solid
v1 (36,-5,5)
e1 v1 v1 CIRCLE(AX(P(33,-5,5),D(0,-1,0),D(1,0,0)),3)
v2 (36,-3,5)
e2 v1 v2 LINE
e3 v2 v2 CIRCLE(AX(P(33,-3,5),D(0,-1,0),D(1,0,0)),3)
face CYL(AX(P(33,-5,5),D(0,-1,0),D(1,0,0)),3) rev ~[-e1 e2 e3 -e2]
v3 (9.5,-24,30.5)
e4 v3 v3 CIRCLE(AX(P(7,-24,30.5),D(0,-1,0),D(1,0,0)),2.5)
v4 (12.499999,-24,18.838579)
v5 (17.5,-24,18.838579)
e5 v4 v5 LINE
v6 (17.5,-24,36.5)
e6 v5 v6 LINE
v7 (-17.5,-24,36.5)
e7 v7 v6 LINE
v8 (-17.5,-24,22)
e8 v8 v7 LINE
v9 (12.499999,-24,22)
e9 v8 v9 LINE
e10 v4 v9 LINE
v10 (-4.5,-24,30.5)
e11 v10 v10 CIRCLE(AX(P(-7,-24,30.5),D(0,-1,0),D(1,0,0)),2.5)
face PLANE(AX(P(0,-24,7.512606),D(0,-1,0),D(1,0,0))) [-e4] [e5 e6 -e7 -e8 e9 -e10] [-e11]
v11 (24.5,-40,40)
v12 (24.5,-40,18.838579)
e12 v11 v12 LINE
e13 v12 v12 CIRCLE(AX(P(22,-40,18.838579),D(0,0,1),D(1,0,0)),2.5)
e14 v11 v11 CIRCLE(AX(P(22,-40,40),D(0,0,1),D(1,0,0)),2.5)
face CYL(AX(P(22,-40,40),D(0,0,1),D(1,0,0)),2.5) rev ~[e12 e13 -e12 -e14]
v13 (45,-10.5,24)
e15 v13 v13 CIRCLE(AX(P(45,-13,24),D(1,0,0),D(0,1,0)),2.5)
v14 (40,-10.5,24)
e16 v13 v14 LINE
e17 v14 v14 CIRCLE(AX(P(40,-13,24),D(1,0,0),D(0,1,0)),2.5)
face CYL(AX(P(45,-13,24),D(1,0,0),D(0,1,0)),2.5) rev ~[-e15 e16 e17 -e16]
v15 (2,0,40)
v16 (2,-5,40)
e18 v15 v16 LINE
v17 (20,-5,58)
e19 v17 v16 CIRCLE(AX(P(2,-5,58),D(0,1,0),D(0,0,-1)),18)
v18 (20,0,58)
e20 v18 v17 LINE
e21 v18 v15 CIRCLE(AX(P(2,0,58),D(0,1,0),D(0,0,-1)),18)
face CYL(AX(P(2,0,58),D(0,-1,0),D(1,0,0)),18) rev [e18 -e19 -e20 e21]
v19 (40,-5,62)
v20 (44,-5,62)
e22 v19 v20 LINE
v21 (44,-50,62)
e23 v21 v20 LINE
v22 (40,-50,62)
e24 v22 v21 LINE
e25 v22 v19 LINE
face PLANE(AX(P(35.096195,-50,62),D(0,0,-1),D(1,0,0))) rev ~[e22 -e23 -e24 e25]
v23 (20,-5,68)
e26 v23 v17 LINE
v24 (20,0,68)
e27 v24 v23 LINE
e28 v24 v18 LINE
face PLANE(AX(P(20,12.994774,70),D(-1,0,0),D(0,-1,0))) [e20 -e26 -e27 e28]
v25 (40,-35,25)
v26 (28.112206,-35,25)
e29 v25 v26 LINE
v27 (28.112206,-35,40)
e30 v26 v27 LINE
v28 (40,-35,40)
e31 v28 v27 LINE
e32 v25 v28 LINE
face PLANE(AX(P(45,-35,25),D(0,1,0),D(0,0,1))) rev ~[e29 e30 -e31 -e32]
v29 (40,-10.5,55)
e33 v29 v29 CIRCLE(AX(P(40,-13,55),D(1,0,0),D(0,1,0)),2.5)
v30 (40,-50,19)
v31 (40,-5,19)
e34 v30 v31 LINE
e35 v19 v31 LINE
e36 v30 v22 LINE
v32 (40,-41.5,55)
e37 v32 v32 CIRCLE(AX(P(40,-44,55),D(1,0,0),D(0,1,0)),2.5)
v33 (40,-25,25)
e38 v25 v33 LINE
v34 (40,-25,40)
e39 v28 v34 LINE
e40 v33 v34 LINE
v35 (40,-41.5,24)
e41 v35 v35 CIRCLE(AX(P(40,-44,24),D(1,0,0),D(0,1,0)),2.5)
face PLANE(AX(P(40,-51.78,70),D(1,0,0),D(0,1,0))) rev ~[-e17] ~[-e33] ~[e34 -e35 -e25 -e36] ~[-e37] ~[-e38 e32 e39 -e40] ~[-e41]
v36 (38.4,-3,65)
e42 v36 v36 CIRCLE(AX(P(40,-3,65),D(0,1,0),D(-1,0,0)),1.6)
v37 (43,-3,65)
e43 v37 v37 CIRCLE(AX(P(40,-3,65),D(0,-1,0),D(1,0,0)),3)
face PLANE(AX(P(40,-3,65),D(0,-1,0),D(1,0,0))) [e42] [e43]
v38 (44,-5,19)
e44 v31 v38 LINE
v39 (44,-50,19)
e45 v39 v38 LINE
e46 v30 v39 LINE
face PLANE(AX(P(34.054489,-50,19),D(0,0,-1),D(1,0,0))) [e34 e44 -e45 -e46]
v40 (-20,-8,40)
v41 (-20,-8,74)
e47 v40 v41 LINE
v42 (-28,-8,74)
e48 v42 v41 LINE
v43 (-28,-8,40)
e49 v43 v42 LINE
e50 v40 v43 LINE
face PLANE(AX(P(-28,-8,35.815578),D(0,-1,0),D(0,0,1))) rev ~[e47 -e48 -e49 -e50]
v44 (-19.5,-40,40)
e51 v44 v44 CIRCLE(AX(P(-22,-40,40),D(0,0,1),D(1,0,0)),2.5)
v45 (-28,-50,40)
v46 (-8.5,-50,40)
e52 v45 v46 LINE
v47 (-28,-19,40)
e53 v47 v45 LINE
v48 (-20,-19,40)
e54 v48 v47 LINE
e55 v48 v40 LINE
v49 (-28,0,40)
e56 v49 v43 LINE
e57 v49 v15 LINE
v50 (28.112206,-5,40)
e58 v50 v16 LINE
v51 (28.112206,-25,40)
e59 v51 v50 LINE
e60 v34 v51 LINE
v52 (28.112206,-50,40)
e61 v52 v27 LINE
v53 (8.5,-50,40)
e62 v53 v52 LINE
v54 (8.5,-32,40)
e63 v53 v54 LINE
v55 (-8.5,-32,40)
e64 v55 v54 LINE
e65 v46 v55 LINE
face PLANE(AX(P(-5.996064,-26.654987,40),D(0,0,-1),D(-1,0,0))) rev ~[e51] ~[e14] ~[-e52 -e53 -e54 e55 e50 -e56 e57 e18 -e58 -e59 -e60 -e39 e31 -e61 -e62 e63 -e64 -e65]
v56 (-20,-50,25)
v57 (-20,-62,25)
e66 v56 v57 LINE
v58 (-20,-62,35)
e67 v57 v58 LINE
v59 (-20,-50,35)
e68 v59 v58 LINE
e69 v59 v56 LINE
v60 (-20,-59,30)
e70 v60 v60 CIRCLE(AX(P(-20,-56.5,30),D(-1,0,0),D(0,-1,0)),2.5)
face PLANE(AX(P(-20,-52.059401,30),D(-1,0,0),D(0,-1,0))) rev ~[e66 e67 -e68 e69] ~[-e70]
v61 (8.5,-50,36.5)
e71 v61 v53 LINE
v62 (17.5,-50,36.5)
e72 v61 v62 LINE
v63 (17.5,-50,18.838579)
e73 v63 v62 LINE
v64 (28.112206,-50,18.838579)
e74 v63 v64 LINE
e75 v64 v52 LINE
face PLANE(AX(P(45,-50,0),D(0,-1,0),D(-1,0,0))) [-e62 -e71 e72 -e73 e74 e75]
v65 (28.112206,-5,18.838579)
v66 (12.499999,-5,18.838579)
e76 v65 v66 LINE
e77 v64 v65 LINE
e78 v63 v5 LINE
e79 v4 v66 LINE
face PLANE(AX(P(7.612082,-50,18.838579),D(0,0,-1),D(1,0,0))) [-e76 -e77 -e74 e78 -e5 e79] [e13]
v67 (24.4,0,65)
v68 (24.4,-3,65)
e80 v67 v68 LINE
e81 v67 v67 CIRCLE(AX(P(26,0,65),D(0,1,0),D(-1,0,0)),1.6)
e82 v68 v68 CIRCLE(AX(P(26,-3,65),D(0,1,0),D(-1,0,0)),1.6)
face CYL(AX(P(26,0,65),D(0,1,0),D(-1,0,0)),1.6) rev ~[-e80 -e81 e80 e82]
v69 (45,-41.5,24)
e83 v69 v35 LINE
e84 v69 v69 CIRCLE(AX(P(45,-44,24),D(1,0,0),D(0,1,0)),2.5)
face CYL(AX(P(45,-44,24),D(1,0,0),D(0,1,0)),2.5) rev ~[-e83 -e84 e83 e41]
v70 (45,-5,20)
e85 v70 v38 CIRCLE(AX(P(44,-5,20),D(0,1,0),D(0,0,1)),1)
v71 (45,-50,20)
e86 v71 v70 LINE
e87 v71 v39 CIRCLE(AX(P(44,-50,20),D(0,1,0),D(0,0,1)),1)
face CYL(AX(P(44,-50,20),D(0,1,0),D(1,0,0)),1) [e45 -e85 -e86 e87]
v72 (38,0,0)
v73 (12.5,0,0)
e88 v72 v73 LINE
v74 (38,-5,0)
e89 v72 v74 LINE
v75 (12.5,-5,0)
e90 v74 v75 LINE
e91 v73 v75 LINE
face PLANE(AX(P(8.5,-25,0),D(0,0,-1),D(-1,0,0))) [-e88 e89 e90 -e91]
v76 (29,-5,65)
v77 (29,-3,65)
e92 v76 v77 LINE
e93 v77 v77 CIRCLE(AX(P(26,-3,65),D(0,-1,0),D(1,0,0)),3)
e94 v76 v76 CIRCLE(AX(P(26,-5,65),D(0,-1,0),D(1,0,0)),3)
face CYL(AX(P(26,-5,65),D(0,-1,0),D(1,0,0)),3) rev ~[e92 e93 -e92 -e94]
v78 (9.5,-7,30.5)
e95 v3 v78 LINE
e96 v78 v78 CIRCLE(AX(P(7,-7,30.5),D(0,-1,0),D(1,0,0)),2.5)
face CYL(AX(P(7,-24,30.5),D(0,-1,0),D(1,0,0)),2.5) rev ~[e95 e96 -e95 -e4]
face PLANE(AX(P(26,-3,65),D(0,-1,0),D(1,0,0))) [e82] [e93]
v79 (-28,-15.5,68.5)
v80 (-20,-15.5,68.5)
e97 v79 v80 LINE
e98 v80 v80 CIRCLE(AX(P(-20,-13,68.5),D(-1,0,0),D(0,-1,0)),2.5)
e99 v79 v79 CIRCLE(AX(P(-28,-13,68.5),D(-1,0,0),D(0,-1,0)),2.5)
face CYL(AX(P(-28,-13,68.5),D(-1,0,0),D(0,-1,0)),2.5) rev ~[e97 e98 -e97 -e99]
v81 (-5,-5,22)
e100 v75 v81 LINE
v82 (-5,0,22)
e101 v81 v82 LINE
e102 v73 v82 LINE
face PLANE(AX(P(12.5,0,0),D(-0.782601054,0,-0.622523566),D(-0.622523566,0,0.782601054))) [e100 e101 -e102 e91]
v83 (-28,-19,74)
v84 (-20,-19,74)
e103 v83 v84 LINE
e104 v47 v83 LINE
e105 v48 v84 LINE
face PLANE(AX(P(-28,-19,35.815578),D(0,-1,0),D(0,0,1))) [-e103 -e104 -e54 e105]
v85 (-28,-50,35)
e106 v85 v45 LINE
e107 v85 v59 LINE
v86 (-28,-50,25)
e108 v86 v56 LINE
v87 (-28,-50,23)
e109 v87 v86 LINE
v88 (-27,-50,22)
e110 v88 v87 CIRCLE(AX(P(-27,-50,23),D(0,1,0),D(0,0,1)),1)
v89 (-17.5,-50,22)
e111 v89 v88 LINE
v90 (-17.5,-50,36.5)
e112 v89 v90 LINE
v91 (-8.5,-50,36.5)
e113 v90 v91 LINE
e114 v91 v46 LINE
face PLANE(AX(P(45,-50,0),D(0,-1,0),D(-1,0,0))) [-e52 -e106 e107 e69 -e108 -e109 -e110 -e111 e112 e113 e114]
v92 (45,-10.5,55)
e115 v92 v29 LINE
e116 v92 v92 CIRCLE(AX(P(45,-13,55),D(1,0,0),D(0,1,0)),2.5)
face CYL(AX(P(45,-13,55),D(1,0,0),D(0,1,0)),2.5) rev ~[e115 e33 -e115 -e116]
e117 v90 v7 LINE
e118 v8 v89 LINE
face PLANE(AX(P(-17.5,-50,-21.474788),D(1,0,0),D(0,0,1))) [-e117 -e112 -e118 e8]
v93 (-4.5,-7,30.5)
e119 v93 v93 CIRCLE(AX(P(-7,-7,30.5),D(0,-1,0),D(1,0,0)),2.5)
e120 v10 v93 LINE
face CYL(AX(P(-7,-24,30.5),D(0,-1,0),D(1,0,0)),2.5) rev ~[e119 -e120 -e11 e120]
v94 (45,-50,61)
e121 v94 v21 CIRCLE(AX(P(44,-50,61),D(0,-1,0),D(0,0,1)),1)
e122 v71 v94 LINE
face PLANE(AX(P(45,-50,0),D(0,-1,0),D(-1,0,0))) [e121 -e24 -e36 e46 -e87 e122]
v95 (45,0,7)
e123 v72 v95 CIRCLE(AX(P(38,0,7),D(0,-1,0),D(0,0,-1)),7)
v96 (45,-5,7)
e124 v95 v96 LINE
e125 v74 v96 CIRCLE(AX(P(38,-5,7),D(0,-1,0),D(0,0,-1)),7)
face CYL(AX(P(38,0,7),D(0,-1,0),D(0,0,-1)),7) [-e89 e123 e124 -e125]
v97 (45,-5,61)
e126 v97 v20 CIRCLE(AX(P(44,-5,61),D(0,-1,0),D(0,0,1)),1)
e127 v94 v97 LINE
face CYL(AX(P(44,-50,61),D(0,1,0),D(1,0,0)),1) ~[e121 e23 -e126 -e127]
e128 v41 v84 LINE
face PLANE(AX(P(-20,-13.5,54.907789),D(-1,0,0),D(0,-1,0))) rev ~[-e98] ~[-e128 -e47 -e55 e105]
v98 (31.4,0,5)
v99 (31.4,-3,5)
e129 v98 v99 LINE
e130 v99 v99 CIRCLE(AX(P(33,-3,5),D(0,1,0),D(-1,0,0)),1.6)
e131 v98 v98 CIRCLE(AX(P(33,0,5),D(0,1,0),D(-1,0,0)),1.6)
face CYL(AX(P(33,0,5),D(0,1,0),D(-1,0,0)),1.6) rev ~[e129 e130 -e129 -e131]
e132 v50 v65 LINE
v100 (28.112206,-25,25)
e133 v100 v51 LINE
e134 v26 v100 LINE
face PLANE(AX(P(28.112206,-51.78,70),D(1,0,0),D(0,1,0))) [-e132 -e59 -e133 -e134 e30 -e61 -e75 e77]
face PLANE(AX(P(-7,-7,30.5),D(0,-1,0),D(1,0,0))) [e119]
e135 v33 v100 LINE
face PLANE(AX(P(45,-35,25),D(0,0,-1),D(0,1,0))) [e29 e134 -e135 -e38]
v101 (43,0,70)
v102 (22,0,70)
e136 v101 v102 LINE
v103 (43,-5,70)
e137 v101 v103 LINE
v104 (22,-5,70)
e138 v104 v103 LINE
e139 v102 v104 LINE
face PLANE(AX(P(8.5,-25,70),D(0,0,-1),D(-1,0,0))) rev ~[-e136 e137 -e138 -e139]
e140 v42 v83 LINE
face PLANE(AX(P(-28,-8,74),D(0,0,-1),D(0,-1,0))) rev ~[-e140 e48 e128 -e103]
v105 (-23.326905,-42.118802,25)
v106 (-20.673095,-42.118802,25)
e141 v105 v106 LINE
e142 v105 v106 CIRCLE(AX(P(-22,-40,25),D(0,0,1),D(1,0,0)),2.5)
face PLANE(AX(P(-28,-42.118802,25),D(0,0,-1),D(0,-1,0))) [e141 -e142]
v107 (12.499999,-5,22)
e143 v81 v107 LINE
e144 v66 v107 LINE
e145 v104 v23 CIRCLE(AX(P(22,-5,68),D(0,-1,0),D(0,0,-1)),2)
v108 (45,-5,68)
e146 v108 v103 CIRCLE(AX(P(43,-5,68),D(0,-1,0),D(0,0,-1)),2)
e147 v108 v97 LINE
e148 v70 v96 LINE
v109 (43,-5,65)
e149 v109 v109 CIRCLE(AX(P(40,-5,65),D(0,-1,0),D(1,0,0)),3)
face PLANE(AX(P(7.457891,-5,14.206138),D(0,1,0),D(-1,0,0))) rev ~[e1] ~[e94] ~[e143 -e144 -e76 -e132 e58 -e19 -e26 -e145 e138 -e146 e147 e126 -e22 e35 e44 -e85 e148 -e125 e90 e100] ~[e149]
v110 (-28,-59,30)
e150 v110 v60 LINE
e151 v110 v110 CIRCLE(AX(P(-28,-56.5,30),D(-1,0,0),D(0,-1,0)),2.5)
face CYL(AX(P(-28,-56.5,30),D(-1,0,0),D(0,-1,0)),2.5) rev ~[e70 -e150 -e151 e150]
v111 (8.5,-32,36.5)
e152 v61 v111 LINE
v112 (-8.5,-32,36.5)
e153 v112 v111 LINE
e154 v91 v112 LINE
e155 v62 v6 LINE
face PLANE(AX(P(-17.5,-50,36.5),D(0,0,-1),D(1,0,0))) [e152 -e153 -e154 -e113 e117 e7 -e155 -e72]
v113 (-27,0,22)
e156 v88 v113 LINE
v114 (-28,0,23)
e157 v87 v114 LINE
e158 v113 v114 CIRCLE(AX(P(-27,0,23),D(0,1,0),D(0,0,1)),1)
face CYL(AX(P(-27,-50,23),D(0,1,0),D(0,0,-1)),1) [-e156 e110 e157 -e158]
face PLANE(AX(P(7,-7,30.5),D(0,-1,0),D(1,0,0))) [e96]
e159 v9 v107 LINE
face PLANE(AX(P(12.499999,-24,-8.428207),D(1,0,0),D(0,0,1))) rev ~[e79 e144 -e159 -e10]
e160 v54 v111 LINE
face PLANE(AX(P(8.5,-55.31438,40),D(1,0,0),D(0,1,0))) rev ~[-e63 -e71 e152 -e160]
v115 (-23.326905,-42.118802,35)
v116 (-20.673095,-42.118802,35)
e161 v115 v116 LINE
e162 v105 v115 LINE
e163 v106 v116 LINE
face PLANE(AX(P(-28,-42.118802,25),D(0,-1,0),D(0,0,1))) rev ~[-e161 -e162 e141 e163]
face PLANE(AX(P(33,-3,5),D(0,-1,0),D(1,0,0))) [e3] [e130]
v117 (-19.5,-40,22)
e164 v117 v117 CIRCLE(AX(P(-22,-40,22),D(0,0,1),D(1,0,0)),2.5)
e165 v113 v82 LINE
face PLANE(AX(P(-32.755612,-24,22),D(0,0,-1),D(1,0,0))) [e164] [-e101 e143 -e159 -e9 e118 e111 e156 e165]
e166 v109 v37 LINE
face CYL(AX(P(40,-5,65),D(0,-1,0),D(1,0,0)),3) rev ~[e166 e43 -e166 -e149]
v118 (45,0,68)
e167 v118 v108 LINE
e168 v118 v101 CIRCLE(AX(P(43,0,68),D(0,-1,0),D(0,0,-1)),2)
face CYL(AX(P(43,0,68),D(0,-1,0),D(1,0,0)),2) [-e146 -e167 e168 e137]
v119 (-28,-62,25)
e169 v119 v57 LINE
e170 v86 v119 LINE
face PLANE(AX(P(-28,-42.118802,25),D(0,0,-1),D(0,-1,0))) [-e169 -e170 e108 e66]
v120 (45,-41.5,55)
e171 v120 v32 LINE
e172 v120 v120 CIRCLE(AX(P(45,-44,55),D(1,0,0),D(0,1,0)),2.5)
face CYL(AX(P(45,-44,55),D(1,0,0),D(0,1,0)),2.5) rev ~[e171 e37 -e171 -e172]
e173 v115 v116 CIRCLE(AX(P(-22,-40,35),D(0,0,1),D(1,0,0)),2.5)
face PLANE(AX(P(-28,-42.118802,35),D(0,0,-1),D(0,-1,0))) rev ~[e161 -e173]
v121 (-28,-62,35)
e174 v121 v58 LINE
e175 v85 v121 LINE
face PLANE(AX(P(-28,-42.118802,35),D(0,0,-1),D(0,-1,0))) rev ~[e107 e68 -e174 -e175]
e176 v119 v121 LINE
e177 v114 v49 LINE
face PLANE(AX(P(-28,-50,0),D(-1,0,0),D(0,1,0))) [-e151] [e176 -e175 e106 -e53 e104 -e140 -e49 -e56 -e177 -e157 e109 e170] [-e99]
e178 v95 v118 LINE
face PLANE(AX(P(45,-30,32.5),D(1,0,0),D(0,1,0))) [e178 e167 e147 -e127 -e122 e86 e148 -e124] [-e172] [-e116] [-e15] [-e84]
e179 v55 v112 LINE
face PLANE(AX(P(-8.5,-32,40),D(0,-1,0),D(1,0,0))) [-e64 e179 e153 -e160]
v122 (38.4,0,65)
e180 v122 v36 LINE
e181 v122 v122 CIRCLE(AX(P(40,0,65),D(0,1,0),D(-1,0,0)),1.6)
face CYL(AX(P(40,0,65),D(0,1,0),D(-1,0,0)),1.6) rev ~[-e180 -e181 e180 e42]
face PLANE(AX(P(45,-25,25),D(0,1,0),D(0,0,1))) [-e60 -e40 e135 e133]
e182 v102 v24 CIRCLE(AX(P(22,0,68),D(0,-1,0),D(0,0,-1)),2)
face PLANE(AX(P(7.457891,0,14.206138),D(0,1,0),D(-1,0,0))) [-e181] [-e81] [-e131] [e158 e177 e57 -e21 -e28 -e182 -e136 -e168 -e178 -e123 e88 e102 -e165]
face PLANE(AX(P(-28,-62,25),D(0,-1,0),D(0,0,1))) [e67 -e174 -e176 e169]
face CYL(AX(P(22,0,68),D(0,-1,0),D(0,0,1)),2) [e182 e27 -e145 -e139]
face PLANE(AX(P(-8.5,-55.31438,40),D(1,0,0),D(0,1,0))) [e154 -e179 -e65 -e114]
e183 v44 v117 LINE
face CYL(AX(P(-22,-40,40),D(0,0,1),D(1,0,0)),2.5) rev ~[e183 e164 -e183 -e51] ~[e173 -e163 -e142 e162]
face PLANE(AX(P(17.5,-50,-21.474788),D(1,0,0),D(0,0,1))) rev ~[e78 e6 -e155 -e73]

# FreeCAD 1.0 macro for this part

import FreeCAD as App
import Part
import Sketcher
from FreeCAD import Vector


def edges_at(feature, points):
    """Names of the edges that pass closest to the given points."""
    edges = feature.Shape.Edges
    near = lambda p: min(range(len(edges)), key=lambda i: edges[i].distToShape(Part.Vertex(*p))[0])
    return sorted({f"Edge{near(p) + 1}" for p in points})

doc = App.newDocument("Part")
body = doc.addObject("PartDesign::Body", "Body")

sketch1 = doc.addObject("Sketcher::SketchObject", "Sketch")
body.addObject(sketch1)
sketch1.AttachmentSupport = (doc.XY_Plane, [""])
sketch1.MapMode = "FlatFace"
sketch1.addGeometry([
    Part.LineSegment(Vector(45, 0, 0), Vector(-28, 0, 0)),
    Part.LineSegment(Vector(-28, 0, 0), Vector(-28, -50, 0)),
    Part.LineSegment(Vector(-28, -50, 0), Vector(45, -50, 0)),
    Part.LineSegment(Vector(45, -50, 0), Vector(45, 0, 0)),
], False)
sketch1.addConstraint([
    Sketcher.Constraint("Coincident", 0, 2, 1, 1),
    Sketcher.Constraint("Coincident", 1, 2, 2, 1),
    Sketcher.Constraint("Coincident", 2, 2, 3, 1),
    Sketcher.Constraint("Coincident", 3, 2, 0, 1),
    Sketcher.Constraint("Horizontal", 0),
    Sketcher.Constraint("Vertical", 1),
    Sketcher.Constraint("Horizontal", 2),
    Sketcher.Constraint("Vertical", 3),
    Sketcher.Constraint("PointOnObject", 0, 2, -1),
    Sketcher.Constraint("DistanceX", 0, 2, 0, 1, 73.0),
    Sketcher.Constraint("DistanceY", 1, 2, 1, 1, 50.0),
    Sketcher.Constraint("DistanceX", 0, 2, -1, 1, 28.0),
])
pad1 = doc.addObject("PartDesign::Pad", "Pad")
body.addObject(pad1)
pad1.Profile = sketch1
pad1.Length = 70

sketch2 = doc.addObject("Sketcher::SketchObject", "Sketch001")
body.addObject(sketch2)
sketch2.AttachmentSupport = (doc.XY_Plane, [""])
sketch2.MapMode = "FlatFace"
sketch2.AttachmentOffset = App.Placement(Vector(0, 0, 70), App.Rotation())
sketch2.addGeometry([
    Part.LineSegment(Vector(28, -5, 0), Vector(28, -52, 0)),
    Part.LineSegment(Vector(28, -52, 0), Vector(40, -52, 0)),
    Part.LineSegment(Vector(40, -52, 0), Vector(40, -5, 0)),
    Part.LineSegment(Vector(40, -5, 0), Vector(28, -5, 0)),
], False)
sketch2.addConstraint([
    Sketcher.Constraint("Coincident", 0, 2, 1, 1),
    Sketcher.Constraint("Coincident", 1, 2, 2, 1),
    Sketcher.Constraint("Coincident", 2, 2, 3, 1),
    Sketcher.Constraint("Coincident", 3, 2, 0, 1),
    Sketcher.Constraint("Vertical", 0),
    Sketcher.Constraint("Horizontal", 1),
    Sketcher.Constraint("Vertical", 2),
    Sketcher.Constraint("Horizontal", 3),
    Sketcher.Constraint("DistanceX", -1, 1, 1, 2, 40.0),
    Sketcher.Constraint("DistanceY", 2, 2, -1, 1, 5.0),
    Sketcher.Constraint("DistanceY", 0, 2, 0, 1, 46.78),
    Sketcher.Constraint("DistanceX", 1, 1, 1, 2, 11.887794),
])
pocket1 = doc.addObject("PartDesign::Pocket", "Pocket")
body.addObject(pocket1)
pocket1.Profile = sketch2
pocket1.Type = "ThroughAll"

sketch3 = doc.addObject("Sketcher::SketchObject", "Sketch002")
body.addObject(sketch3)
sketch3.AttachmentSupport = (doc.XY_Plane, [""])
sketch3.MapMode = "FlatFace"
sketch3.AttachmentOffset = App.Placement(Vector(0, 0, 70), App.Rotation())
sketch3.addGeometry([
    Part.LineSegment(Vector(30, -65, 0), Vector(30, -5, 0)),
    Part.LineSegment(Vector(30, -5, 0), Vector(20, -5, 0)),
    Part.LineSegment(Vector(20, -5, 0), Vector(20, 13, 0)),
    Part.LineSegment(Vector(20, 13, 0), Vector(-41, 13, 0)),
    Part.LineSegment(Vector(-41, 13, 0), Vector(-41, -65, 0)),
    Part.LineSegment(Vector(-41, -65, 0), Vector(30, -65, 0)),
], False)
sketch3.addConstraint([
    Sketcher.Constraint("Coincident", 0, 2, 1, 1),
    Sketcher.Constraint("Coincident", 1, 2, 2, 1),
    Sketcher.Constraint("Coincident", 2, 2, 3, 1),
    Sketcher.Constraint("Coincident", 3, 2, 4, 1),
    Sketcher.Constraint("Coincident", 4, 2, 5, 1),
    Sketcher.Constraint("Coincident", 5, 2, 0, 1),
    Sketcher.Constraint("Vertical", 0),
    Sketcher.Constraint("Horizontal", 1),
    Sketcher.Constraint("Vertical", 2),
    Sketcher.Constraint("Horizontal", 3),
    Sketcher.Constraint("Vertical", 4),
    Sketcher.Constraint("Horizontal", 5),
    Sketcher.Constraint("DistanceX", 1, 2, 1, 1, 10.0),
    Sketcher.Constraint("DistanceX", -1, 1, 0, 2, 30.0),
    Sketcher.Constraint("DistanceY", 0, 2, -1, 1, 5.0),
    Sketcher.Constraint("DistanceY", 4, 2, 4, 1, 78.090798),
    Sketcher.Constraint("DistanceX", 3, 2, 3, 1, 60.783405),
    Sketcher.Constraint("DistanceY", 0, 1, 0, 2, 60.096024),
])
pocket2 = doc.addObject("PartDesign::Pocket", "Pocket001")
body.addObject(pocket2)
pocket2.Profile = sketch3
pocket2.Length = 30

sketch4 = doc.addObject("Sketcher::SketchObject", "Sketch003")
body.addObject(sketch4)
sketch4.AttachmentSupport = (doc.XY_Plane, [""])
sketch4.MapMode = "FlatFace"
sketch4.AttachmentOffset = App.Placement(Vector(0, 0, 40), App.Rotation())
sketch4.addGeometry([
    Part.Circle(Vector(-22, -40, 0), Vector(0, 0, 1), 2.5),
    Part.Circle(Vector(22, -40, 0), Vector(0, 0, 1), 2.5),
], False)
sketch4.addConstraint([
    Sketcher.Constraint("Equal", 0, 1),
    Sketcher.Constraint("Symmetric", 0, 3, 1, 3, -2),
    Sketcher.Constraint("Diameter", 0, 5.0),
    Sketcher.Constraint("DistanceX", 0, 3, -1, 1, 22.0),
    Sketcher.Constraint("DistanceY", 0, 3, -1, 1, 40.0),
])
pocket3 = doc.addObject("PartDesign::Pocket", "Pocket002")
body.addObject(pocket3)
pocket3.Profile = sketch4
pocket3.Type = "ThroughAll"

sketch5 = doc.addObject("Sketcher::SketchObject", "Sketch004")
body.addObject(sketch5)
sketch5.AttachmentSupport = (doc.XY_Plane, [""])
sketch5.MapMode = "FlatFace"
sketch5.AttachmentOffset = App.Placement(Vector(0, 0, 40), App.Rotation())
sketch5.addGeometry([
    Part.LineSegment(Vector(-8, -32, 0), Vector(-8, -55, 0)),
    Part.LineSegment(Vector(-8, -55, 0), Vector(8, -55, 0)),
    Part.LineSegment(Vector(8, -55, 0), Vector(8, -32, 0)),
    Part.LineSegment(Vector(8, -32, 0), Vector(-8, -32, 0)),
], False)
sketch5.addConstraint([
    Sketcher.Constraint("Coincident", 0, 2, 1, 1),
    Sketcher.Constraint("Coincident", 1, 2, 2, 1),
    Sketcher.Constraint("Coincident", 2, 2, 3, 1),
    Sketcher.Constraint("Coincident", 3, 2, 0, 1),
    Sketcher.Constraint("Vertical", 0),
    Sketcher.Constraint("Horizontal", 1),
    Sketcher.Constraint("Vertical", 2),
    Sketcher.Constraint("Horizontal", 3),
    Sketcher.Constraint("DistanceX", 1, 1, 1, 2, 17.0),
    Sketcher.Constraint("DistanceY", 2, 2, -1, 1, 32.0),
    Sketcher.Constraint("DistanceX", 0, 2, -1, 1, 8.5),
    Sketcher.Constraint("DistanceY", 0, 2, 0, 1, 23.314381),
])
pocket4 = doc.addObject("PartDesign::Pocket", "Pocket003")
body.addObject(pocket4)
pocket4.Profile = sketch5
pocket4.Type = "ThroughAll"

sketch6 = doc.addObject("Sketcher::SketchObject", "Sketch005")
body.addObject(sketch6)
sketch6.AttachmentSupport = (doc.XZ_Plane, [""])
sketch6.MapMode = "FlatFace"
sketch6.AttachmentOffset = App.Placement(Vector(0, 0, 50), App.Rotation())
sketch6.addGeometry([
    Part.LineSegment(Vector(-18, 37, 0), Vector(-18, -21, 0)),
    Part.LineSegment(Vector(-18, -21, 0), Vector(18, -21, 0)),
    Part.LineSegment(Vector(18, -21, 0), Vector(18, 37, 0)),
    Part.LineSegment(Vector(18, 37, 0), Vector(-18, 37, 0)),
], False)
sketch6.addConstraint([
    Sketcher.Constraint("Coincident", 0, 2, 1, 1),
    Sketcher.Constraint("Coincident", 1, 2, 2, 1),
    Sketcher.Constraint("Coincident", 2, 2, 3, 1),
    Sketcher.Constraint("Coincident", 3, 2, 0, 1),
    Sketcher.Constraint("Vertical", 0),
    Sketcher.Constraint("Horizontal", 1),
    Sketcher.Constraint("Vertical", 2),
    Sketcher.Constraint("Horizontal", 3),
    Sketcher.Constraint("DistanceX", 1, 1, 1, 2, 35.0),
    Sketcher.Constraint("DistanceX", 0, 2, -1, 1, 17.5),
    Sketcher.Constraint("DistanceY", -1, 1, 2, 2, 36.5),
    Sketcher.Constraint("DistanceY", 0, 2, 0, 1, 57.974789),
])
pocket5 = doc.addObject("PartDesign::Pocket", "Pocket004")
body.addObject(pocket5)
pocket5.Profile = sketch6
pocket5.Length = 26

sketch7 = doc.addObject("Sketcher::SketchObject", "Sketch006")
body.addObject(sketch7)
sketch7.AttachmentSupport = (doc.XZ_Plane, [""])
sketch7.MapMode = "FlatFace"
sketch7.AttachmentOffset = App.Placement(Vector(0, 0, 24), App.Rotation())
sketch7.addGeometry([
    Part.LineSegment(Vector(-33, 22, 0), Vector(-33, -8, 0)),
    Part.LineSegment(Vector(-33, -8, 0), Vector(12, -8, 0)),
    Part.LineSegment(Vector(12, -8, 0), Vector(12, 22, 0)),
    Part.LineSegment(Vector(12, 22, 0), Vector(-33, 22, 0)),
], False)
sketch7.addConstraint([
    Sketcher.Constraint("Coincident", 0, 2, 1, 1),
    Sketcher.Constraint("Coincident", 1, 2, 2, 1),
    Sketcher.Constraint("Coincident", 2, 2, 3, 1),
    Sketcher.Constraint("Coincident", 3, 2, 0, 1),
    Sketcher.Constraint("Vertical", 0),
    Sketcher.Constraint("Horizontal", 1),
    Sketcher.Constraint("Vertical", 2),
    Sketcher.Constraint("Horizontal", 3),
    Sketcher.Constraint("DistanceY", -1, 1, 2, 2, 22.0),
    Sketcher.Constraint("DistanceX", -1, 1, 1, 2, 12.499999),
    Sketcher.Constraint("DistanceX", 1, 1, 1, 2, 45.255611),
    Sketcher.Constraint("DistanceY", 0, 2, 0, 1, 30.428207),
])
pocket6 = doc.addObject("PartDesign::Pocket", "Pocket005")
body.addObject(pocket6)
pocket6.Profile = sketch7
pocket6.Type = "ThroughAll"
pocket6.Midplane = True

sketch8 = doc.addObject("Sketcher::SketchObject", "Sketch007")
body.addObject(sketch8)
sketch8.AttachmentSupport = (doc.XZ_Plane, [""])
sketch8.MapMode = "FlatFace"
sketch8.AttachmentOffset = App.Placement(Vector(0, 0, 50), App.Rotation())
sketch8.addGeometry([
    Part.LineSegment(Vector(8, 19, 0), Vector(8, -11, 0)),
    Part.LineSegment(Vector(8, -11, 0), Vector(34, -11, 0)),
    Part.LineSegment(Vector(34, -11, 0), Vector(34, 19, 0)),
    Part.LineSegment(Vector(34, 19, 0), Vector(8, 19, 0)),
], False)
sketch8.addConstraint([
    Sketcher.Constraint("Coincident", 0, 2, 1, 1),
    Sketcher.Constraint("Coincident", 1, 2, 2, 1),
    Sketcher.Constraint("Coincident", 2, 2, 3, 1),
    Sketcher.Constraint("Coincident", 3, 2, 0, 1),
    Sketcher.Constraint("Vertical", 0),
    Sketcher.Constraint("Horizontal", 1),
    Sketcher.Constraint("Vertical", 2),
    Sketcher.Constraint("Horizontal", 3),
    Sketcher.Constraint("DistanceX", 1, 1, 1, 2, 26.242121),
    Sketcher.Constraint("DistanceY", 0, 2, 0, 1, 29.741062),
    Sketcher.Constraint("DistanceX", -1, 1, 0, 2, 7.612082),
    Sketcher.Constraint("DistanceY", -1, 1, 2, 2, 18.838579),
])
pocket7 = doc.addObject("PartDesign::Pocket", "Pocket006")
body.addObject(pocket7)
pocket7.Profile = sketch8
pocket7.Length = 45

sketch9 = doc.addObject("Sketcher::SketchObject", "Sketch008")
body.addObject(sketch9)
sketch9.AttachmentSupport = (doc.XZ_Plane, [""])
sketch9.MapMode = "FlatFace"
sketch9.AttachmentOffset = App.Placement(Vector(0, 0, 50), App.Rotation())
sketch9.addGeometry([
    Part.LineSegment(Vector(35, 76, 0), Vector(35, 62, 0)),
    Part.LineSegment(Vector(35, 62, 0), Vector(51, 62, 0)),
    Part.LineSegment(Vector(51, 62, 0), Vector(51, 76, 0)),
    Part.LineSegment(Vector(51, 76, 0), Vector(35, 76, 0)),
    Part.LineSegment(Vector(34, 19, 0), Vector(34, -13, 0)),
    Part.LineSegment(Vector(34, -13, 0), Vector(59, -13, 0)),
    Part.LineSegment(Vector(59, -13, 0), Vector(59, 19, 0)),
    Part.LineSegment(Vector(59, 19, 0), Vector(34, 19, 0)),
], False)
sketch9.addConstraint([
    Sketcher.Constraint("Coincident", 0, 2, 1, 1),
    Sketcher.Constraint("Coincident", 1, 2, 2, 1),
    Sketcher.Constraint("Coincident", 2, 2, 3, 1),
    Sketcher.Constraint("Coincident", 3, 2, 0, 1),
    Sketcher.Constraint("Coincident", 4, 2, 5, 1),
    Sketcher.Constraint("Coincident", 5, 2, 6, 1),
    Sketcher.Constraint("Coincident", 6, 2, 7, 1),
    Sketcher.Constraint("Coincident", 7, 2, 4, 1),
    Sketcher.Constraint("Vertical", 0),
    Sketcher.Constraint("Horizontal", 1),
    Sketcher.Constraint("Vertical", 2),
    Sketcher.Constraint("Horizontal", 3),
    Sketcher.Constraint("Vertical", 4),
    Sketcher.Constraint("Horizontal", 5),
    Sketcher.Constraint("Vertical", 6),
    Sketcher.Constraint("Horizontal", 7),
    Sketcher.Constraint("DistanceY", -1, 1, 0, 2, 62.0),
    Sketcher.Constraint("DistanceY", -1, 1, 6, 2, 19.0),
    Sketcher.Constraint("DistanceY", 4, 2, 4, 1, 31.67345),
    Sketcher.Constraint("DistanceX", 1, 1, 1, 2, 15.625622),
    Sketcher.Constraint("DistanceX", 5, 1, 5, 2, 24.610352),
    Sketcher.Constraint("DistanceY", 0, 2, 0, 1, 14.392597),
    Sketcher.Constraint("DistanceX", -1, 1, 4, 2, 34.054489),
    Sketcher.Constraint("DistanceX", 4, 2, 1, 2, 16.667328),
])
pocket8 = doc.addObject("PartDesign::Pocket", "Pocket007")
body.addObject(pocket8)
pocket8.Profile = sketch9
pocket8.Length = 45

sketch10 = doc.addObject("Sketcher::SketchObject", "Sketch009")
body.addObject(sketch10)
sketch10.AttachmentSupport = (doc.YZ_Plane, [""])
sketch10.MapMode = "FlatFace"
sketch10.AttachmentOffset = App.Placement(Vector(0, 0, 45), App.Rotation())
sketch10.addGeometry([
    Part.Circle(Vector(-44, 55, 0), Vector(0, 0, 1), 2.5),
    Part.Circle(Vector(-13, 24, 0), Vector(0, 0, 1), 2.5),
    Part.Circle(Vector(-13, 55, 0), Vector(0, 0, 1), 2.5),
    Part.Circle(Vector(-44, 24, 0), Vector(0, 0, 1), 2.5),
], False)
sketch10.addConstraint([
    Sketcher.Constraint("Equal", 0, 1),
    Sketcher.Constraint("Equal", 1, 2),
    Sketcher.Constraint("Equal", 2, 3),
    Sketcher.Constraint("Horizontal", 0, 3, 2, 3),
    Sketcher.Constraint("Horizontal", 1, 3, 3, 3),
    Sketcher.Constraint("Vertical", 1, 3, 2, 3),
    Sketcher.Constraint("Vertical", 0, 3, 3, 3),
    Sketcher.Constraint("Diameter", 0, 5.0),
    Sketcher.Constraint("DistanceX", 0, 3, -1, 1, 44.0),
    Sketcher.Constraint("DistanceY", -1, 1, 0, 3, 55.0),
    Sketcher.Constraint("DistanceX", 1, 3, -1, 1, 13.0),
    Sketcher.Constraint("DistanceY", -1, 1, 1, 3, 24.0),
])
pocket9 = doc.addObject("PartDesign::Pocket", "Pocket008")
body.addObject(pocket9)
pocket9.Profile = sketch10
pocket9.Length = 13

sketch11 = doc.addObject("Sketcher::SketchObject", "Sketch010")
body.addObject(sketch11)
sketch11.AttachmentSupport = (doc.XZ_Plane, [""])
sketch11.MapMode = "FlatFace"
sketch11.addGeometry([
    Part.Circle(Vector(33, 5, 0), Vector(0, 0, 1), 1.6),
    Part.Circle(Vector(40, 65, 0), Vector(0, 0, 1), 1.6),
    Part.Circle(Vector(26, 65, 0), Vector(0, 0, 1), 1.6),
], False)
sketch11.addConstraint([
    Sketcher.Constraint("Equal", 0, 1),
    Sketcher.Constraint("Equal", 1, 2),
    Sketcher.Constraint("Horizontal", 1, 3, 2, 3),
    Sketcher.Constraint("Diameter", 0, 3.2),
    Sketcher.Constraint("DistanceX", -1, 1, 0, 3, 33.0),
    Sketcher.Constraint("DistanceY", -1, 1, 0, 3, 5.0),
    Sketcher.Constraint("DistanceX", -1, 1, 1, 3, 40.0),
    Sketcher.Constraint("DistanceY", -1, 1, 1, 3, 65.0),
    Sketcher.Constraint("DistanceX", -1, 1, 2, 3, 26.0),
])
pocket10 = doc.addObject("PartDesign::Pocket", "Pocket009")
body.addObject(pocket10)
pocket10.Profile = sketch11
pocket10.Length = 5
pocket10.Reversed = True

sketch12 = doc.addObject("Sketcher::SketchObject", "Sketch011")
body.addObject(sketch12)
sketch12.AttachmentSupport = (doc.YZ_Plane, [""])
sketch12.MapMode = "FlatFace"
sketch12.AttachmentOffset = App.Placement(Vector(0, 0, 45), App.Rotation())
sketch12.addGeometry([
    Part.LineSegment(Vector(-35, 40, 0), Vector(-35, 25, 0)),
    Part.LineSegment(Vector(-35, 25, 0), Vector(-25, 25, 0)),
    Part.LineSegment(Vector(-25, 25, 0), Vector(-25, 40, 0)),
    Part.LineSegment(Vector(-25, 40, 0), Vector(-35, 40, 0)),
], False)
sketch12.addConstraint([
    Sketcher.Constraint("Coincident", 0, 2, 1, 1),
    Sketcher.Constraint("Coincident", 1, 2, 2, 1),
    Sketcher.Constraint("Coincident", 2, 2, 3, 1),
    Sketcher.Constraint("Coincident", 3, 2, 0, 1),
    Sketcher.Constraint("Vertical", 0),
    Sketcher.Constraint("Horizontal", 1),
    Sketcher.Constraint("Vertical", 2),
    Sketcher.Constraint("Horizontal", 3),
    Sketcher.Constraint("DistanceX", 1, 1, 1, 2, 10.0),
    Sketcher.Constraint("DistanceY", 0, 2, 0, 1, 15.0),
    Sketcher.Constraint("DistanceX", 0, 2, -1, 1, 35.0),
    Sketcher.Constraint("DistanceY", -1, 1, 0, 2, 25.0),
])
pad2 = doc.addObject("PartDesign::Pad", "Pad001")
body.addObject(pad2)
pad2.Profile = sketch12
pad2.Length = 23
pad2.Reversed = True

sketch13 = doc.addObject("Sketcher::SketchObject", "Sketch012")
body.addObject(sketch13)
sketch13.AttachmentSupport = (doc.YZ_Plane, [""])
sketch13.MapMode = "FlatFace"
sketch13.AttachmentOffset = App.Placement(Vector(0, 0, -28), App.Rotation())
sketch13.addGeometry([
    Part.LineSegment(Vector(-8, 74, 0), Vector(-8, 36, 0)),
    Part.LineSegment(Vector(-8, 36, 0), Vector(-19, 36, 0)),
    Part.LineSegment(Vector(-19, 36, 0), Vector(-19, 74, 0)),
    Part.LineSegment(Vector(-19, 74, 0), Vector(-8, 74, 0)),
    Part.LineSegment(Vector(-42, 35, 0), Vector(-42, 25, 0)),
    Part.LineSegment(Vector(-42, 25, 0), Vector(-62, 25, 0)),
    Part.LineSegment(Vector(-62, 25, 0), Vector(-62, 35, 0)),
    Part.LineSegment(Vector(-62, 35, 0), Vector(-42, 35, 0)),
], False)
sketch13.addConstraint([
    Sketcher.Constraint("Coincident", 0, 2, 1, 1),
    Sketcher.Constraint("Coincident", 1, 2, 2, 1),
    Sketcher.Constraint("Coincident", 2, 2, 3, 1),
    Sketcher.Constraint("Coincident", 3, 2, 0, 1),
    Sketcher.Constraint("Coincident", 4, 2, 5, 1),
    Sketcher.Constraint("Coincident", 5, 2, 6, 1),
    Sketcher.Constraint("Coincident", 6, 2, 7, 1),
    Sketcher.Constraint("Coincident", 7, 2, 4, 1),
    Sketcher.Constraint("Vertical", 0),
    Sketcher.Constraint("Horizontal", 1),
    Sketcher.Constraint("Vertical", 2),
    Sketcher.Constraint("Horizontal", 3),
    Sketcher.Constraint("Vertical", 4),
    Sketcher.Constraint("Horizontal", 5),
    Sketcher.Constraint("Vertical", 6),
    Sketcher.Constraint("Horizontal", 7),
    Sketcher.Constraint("DistanceX", 1, 2, 1, 1, 11.0),
    Sketcher.Constraint("DistanceY", 4, 2, 4, 1, 10.0),
    Sketcher.Constraint("DistanceX", 0, 2, -1, 1, 8.0),
    Sketcher.Constraint("DistanceY", -1, 1, 2, 2, 74.0),
    Sketcher.Constraint("DistanceY", -1, 1, 4, 2, 25.0),
    Sketcher.Constraint("DistanceX", 5, 2, -1, 1, 62.0),
    Sketcher.Constraint("DistanceY", 0, 2, 0, 1, 38.184422),
    Sketcher.Constraint("DistanceX", 5, 2, 5, 1, 19.881198),
])
pad3 = doc.addObject("PartDesign::Pad", "Pad002")
body.addObject(pad3)
pad3.Profile = sketch13
pad3.Length = 8

sketch14 = doc.addObject("Sketcher::SketchObject", "Sketch013")
body.addObject(sketch14)
sketch14.AttachmentSupport = (doc.XZ_Plane, [""])
sketch14.MapMode = "FlatFace"
sketch14.AttachmentOffset = App.Placement(Vector(0, 0, 24), App.Rotation())
sketch14.addGeometry([
    Part.Circle(Vector(-7, 30.5, 0), Vector(0, 0, 1), 2.5),
    Part.Circle(Vector(7, 30.5, 0), Vector(0, 0, 1), 2.5),
], False)
sketch14.addConstraint([
    Sketcher.Constraint("Equal", 0, 1),
    Sketcher.Constraint("Symmetric", 0, 3, 1, 3, -2),
    Sketcher.Constraint("Diameter", 0, 5.0),
    Sketcher.Constraint("DistanceX", 0, 3, -1, 1, 7.0),
    Sketcher.Constraint("DistanceY", -1, 1, 0, 3, 30.5),
])
pocket11 = doc.addObject("PartDesign::Pocket", "Pocket010")
body.addObject(pocket11)
pocket11.Profile = sketch14
pocket11.Length = 17

sketch15 = doc.addObject("Sketcher::SketchObject", "Sketch014")
body.addObject(sketch15)
sketch15.AttachmentSupport = (doc.YZ_Plane, [""])
sketch15.MapMode = "FlatFace"
sketch15.AttachmentOffset = App.Placement(Vector(0, 0, -28), App.Rotation())
sketch15.addGeometry([
    Part.Circle(Vector(-56.5, 30, 0), Vector(0, 0, 1), 2.5),
    Part.Circle(Vector(-13, 68.5, 0), Vector(0, 0, 1), 2.5),
], False)
sketch15.addConstraint([
    Sketcher.Constraint("Equal", 0, 1),
    Sketcher.Constraint("Diameter", 0, 5.0),
    Sketcher.Constraint("DistanceY", -1, 1, 0, 3, 30.0),
    Sketcher.Constraint("DistanceX", 1, 3, -1, 1, 13.0),
    Sketcher.Constraint("DistanceX", 0, 3, -1, 1, 56.5),
    Sketcher.Constraint("DistanceY", -1, 1, 1, 3, 68.5),
])
pocket12 = doc.addObject("PartDesign::Pocket", "Pocket011")
body.addObject(pocket12)
pocket12.Profile = sketch15
pocket12.Length = 15
pocket12.Reversed = True

sketch16 = doc.addObject("Sketcher::SketchObject", "Sketch015")
body.addObject(sketch16)
sketch16.AttachmentSupport = (doc.XZ_Plane, [""])
sketch16.MapMode = "FlatFace"
sketch16.addGeometry([
    Part.LineSegment(Vector(12, 0, 0), Vector(-5, 22, 0)),
    Part.LineSegment(Vector(-5, 22, 0), Vector(16, 22, 0)),
    Part.LineSegment(Vector(16, 22, 0), Vector(12, 0, 0)),
], False)
sketch16.addConstraint([
    Sketcher.Constraint("Coincident", 0, 2, 1, 1),
    Sketcher.Constraint("Coincident", 1, 2, 2, 1),
    Sketcher.Constraint("Coincident", 2, 2, 0, 1),
    Sketcher.Constraint("Horizontal", 1),
    Sketcher.Constraint("PointOnObject", 2, 2, -1),
    Sketcher.Constraint("DistanceX", 0, 2, -1, 1, 5.0),
    Sketcher.Constraint("DistanceY", -1, 1, 0, 2, 22.0),
    Sketcher.Constraint("DistanceX", 1, 1, 1, 2, 20.71),
    Sketcher.Constraint("DistanceX", -1, 1, 2, 2, 12.5),
])
pad4 = doc.addObject("PartDesign::Pad", "Pad003")
body.addObject(pad4)
pad4.Profile = sketch16
pad4.Length = 5

sketch17 = doc.addObject("Sketcher::SketchObject", "Sketch016")
body.addObject(sketch17)
sketch17.AttachmentSupport = (doc.XZ_Plane, [""])
sketch17.MapMode = "FlatFace"
sketch17.AttachmentOffset = App.Placement(Vector(0, 0, 5), App.Rotation())
sketch17.addGeometry([
    Part.Circle(Vector(26, 65, 0), Vector(0, 0, 1), 3),
    Part.Circle(Vector(33, 5, 0), Vector(0, 0, 1), 3),
    Part.Circle(Vector(40, 65, 0), Vector(0, 0, 1), 3),
], False)
sketch17.addConstraint([
    Sketcher.Constraint("Equal", 0, 1),
    Sketcher.Constraint("Equal", 1, 2),
    Sketcher.Constraint("Horizontal", 0, 3, 2, 3),
    Sketcher.Constraint("Diameter", 0, 6.0),
    Sketcher.Constraint("DistanceX", -1, 1, 0, 3, 26.0),
    Sketcher.Constraint("DistanceY", -1, 1, 0, 3, 65.0),
    Sketcher.Constraint("DistanceX", -1, 1, 1, 3, 33.0),
    Sketcher.Constraint("DistanceY", -1, 1, 1, 3, 5.0),
    Sketcher.Constraint("DistanceX", -1, 1, 2, 3, 40.0),
])
pocket13 = doc.addObject("PartDesign::Pocket", "Pocket012")
body.addObject(pocket13)
pocket13.Profile = sketch17
pocket13.Length = 2
doc.recompute()

fillet = doc.addObject("PartDesign::Fillet", "Fillet")
body.addObject(fillet)
fillet.Base = (pocket13, edges_at(pocket13, [(-28, -25, 22)]))
fillet.Radius = 1
doc.recompute()

fillet2 = doc.addObject("PartDesign::Fillet", "Fillet001")
body.addObject(fillet2)
fillet2.Base = (fillet, edges_at(fillet, [(45, -2.5, 0)]))
fillet2.Radius = 7
doc.recompute()

fillet3 = doc.addObject("PartDesign::Fillet", "Fillet002")
body.addObject(fillet3)
fillet3.Base = (fillet2, edges_at(fillet2, [(45, -27.5, 19)]))
fillet3.Radius = 1
doc.recompute()

fillet4 = doc.addObject("PartDesign::Fillet", "Fillet003")
body.addObject(fillet4)
fillet4.Base = (fillet3, edges_at(fillet3, [(45, -27.5, 62)]))
fillet4.Radius = 1
doc.recompute()

fillet5 = doc.addObject("PartDesign::Fillet", "Fillet004")
body.addObject(fillet5)
fillet5.Base = (fillet4, edges_at(fillet4, [(45, -2.5, 70)]))
fillet5.Radius = 2
doc.recompute()

fillet6 = doc.addObject("PartDesign::Fillet", "Fillet005")
body.addObject(fillet6)
fillet6.Base = (fillet5, edges_at(fillet5, [(20, -2.5, 70)]))
fillet6.Radius = 2
doc.recompute()

fillet7 = doc.addObject("PartDesign::Fillet", "Fillet006")
body.addObject(fillet7)
fillet7.Base = (fillet6, edges_at(fillet6, [(20, -2.5, 40)]))
fillet7.Radius = 18

doc.recompute()
